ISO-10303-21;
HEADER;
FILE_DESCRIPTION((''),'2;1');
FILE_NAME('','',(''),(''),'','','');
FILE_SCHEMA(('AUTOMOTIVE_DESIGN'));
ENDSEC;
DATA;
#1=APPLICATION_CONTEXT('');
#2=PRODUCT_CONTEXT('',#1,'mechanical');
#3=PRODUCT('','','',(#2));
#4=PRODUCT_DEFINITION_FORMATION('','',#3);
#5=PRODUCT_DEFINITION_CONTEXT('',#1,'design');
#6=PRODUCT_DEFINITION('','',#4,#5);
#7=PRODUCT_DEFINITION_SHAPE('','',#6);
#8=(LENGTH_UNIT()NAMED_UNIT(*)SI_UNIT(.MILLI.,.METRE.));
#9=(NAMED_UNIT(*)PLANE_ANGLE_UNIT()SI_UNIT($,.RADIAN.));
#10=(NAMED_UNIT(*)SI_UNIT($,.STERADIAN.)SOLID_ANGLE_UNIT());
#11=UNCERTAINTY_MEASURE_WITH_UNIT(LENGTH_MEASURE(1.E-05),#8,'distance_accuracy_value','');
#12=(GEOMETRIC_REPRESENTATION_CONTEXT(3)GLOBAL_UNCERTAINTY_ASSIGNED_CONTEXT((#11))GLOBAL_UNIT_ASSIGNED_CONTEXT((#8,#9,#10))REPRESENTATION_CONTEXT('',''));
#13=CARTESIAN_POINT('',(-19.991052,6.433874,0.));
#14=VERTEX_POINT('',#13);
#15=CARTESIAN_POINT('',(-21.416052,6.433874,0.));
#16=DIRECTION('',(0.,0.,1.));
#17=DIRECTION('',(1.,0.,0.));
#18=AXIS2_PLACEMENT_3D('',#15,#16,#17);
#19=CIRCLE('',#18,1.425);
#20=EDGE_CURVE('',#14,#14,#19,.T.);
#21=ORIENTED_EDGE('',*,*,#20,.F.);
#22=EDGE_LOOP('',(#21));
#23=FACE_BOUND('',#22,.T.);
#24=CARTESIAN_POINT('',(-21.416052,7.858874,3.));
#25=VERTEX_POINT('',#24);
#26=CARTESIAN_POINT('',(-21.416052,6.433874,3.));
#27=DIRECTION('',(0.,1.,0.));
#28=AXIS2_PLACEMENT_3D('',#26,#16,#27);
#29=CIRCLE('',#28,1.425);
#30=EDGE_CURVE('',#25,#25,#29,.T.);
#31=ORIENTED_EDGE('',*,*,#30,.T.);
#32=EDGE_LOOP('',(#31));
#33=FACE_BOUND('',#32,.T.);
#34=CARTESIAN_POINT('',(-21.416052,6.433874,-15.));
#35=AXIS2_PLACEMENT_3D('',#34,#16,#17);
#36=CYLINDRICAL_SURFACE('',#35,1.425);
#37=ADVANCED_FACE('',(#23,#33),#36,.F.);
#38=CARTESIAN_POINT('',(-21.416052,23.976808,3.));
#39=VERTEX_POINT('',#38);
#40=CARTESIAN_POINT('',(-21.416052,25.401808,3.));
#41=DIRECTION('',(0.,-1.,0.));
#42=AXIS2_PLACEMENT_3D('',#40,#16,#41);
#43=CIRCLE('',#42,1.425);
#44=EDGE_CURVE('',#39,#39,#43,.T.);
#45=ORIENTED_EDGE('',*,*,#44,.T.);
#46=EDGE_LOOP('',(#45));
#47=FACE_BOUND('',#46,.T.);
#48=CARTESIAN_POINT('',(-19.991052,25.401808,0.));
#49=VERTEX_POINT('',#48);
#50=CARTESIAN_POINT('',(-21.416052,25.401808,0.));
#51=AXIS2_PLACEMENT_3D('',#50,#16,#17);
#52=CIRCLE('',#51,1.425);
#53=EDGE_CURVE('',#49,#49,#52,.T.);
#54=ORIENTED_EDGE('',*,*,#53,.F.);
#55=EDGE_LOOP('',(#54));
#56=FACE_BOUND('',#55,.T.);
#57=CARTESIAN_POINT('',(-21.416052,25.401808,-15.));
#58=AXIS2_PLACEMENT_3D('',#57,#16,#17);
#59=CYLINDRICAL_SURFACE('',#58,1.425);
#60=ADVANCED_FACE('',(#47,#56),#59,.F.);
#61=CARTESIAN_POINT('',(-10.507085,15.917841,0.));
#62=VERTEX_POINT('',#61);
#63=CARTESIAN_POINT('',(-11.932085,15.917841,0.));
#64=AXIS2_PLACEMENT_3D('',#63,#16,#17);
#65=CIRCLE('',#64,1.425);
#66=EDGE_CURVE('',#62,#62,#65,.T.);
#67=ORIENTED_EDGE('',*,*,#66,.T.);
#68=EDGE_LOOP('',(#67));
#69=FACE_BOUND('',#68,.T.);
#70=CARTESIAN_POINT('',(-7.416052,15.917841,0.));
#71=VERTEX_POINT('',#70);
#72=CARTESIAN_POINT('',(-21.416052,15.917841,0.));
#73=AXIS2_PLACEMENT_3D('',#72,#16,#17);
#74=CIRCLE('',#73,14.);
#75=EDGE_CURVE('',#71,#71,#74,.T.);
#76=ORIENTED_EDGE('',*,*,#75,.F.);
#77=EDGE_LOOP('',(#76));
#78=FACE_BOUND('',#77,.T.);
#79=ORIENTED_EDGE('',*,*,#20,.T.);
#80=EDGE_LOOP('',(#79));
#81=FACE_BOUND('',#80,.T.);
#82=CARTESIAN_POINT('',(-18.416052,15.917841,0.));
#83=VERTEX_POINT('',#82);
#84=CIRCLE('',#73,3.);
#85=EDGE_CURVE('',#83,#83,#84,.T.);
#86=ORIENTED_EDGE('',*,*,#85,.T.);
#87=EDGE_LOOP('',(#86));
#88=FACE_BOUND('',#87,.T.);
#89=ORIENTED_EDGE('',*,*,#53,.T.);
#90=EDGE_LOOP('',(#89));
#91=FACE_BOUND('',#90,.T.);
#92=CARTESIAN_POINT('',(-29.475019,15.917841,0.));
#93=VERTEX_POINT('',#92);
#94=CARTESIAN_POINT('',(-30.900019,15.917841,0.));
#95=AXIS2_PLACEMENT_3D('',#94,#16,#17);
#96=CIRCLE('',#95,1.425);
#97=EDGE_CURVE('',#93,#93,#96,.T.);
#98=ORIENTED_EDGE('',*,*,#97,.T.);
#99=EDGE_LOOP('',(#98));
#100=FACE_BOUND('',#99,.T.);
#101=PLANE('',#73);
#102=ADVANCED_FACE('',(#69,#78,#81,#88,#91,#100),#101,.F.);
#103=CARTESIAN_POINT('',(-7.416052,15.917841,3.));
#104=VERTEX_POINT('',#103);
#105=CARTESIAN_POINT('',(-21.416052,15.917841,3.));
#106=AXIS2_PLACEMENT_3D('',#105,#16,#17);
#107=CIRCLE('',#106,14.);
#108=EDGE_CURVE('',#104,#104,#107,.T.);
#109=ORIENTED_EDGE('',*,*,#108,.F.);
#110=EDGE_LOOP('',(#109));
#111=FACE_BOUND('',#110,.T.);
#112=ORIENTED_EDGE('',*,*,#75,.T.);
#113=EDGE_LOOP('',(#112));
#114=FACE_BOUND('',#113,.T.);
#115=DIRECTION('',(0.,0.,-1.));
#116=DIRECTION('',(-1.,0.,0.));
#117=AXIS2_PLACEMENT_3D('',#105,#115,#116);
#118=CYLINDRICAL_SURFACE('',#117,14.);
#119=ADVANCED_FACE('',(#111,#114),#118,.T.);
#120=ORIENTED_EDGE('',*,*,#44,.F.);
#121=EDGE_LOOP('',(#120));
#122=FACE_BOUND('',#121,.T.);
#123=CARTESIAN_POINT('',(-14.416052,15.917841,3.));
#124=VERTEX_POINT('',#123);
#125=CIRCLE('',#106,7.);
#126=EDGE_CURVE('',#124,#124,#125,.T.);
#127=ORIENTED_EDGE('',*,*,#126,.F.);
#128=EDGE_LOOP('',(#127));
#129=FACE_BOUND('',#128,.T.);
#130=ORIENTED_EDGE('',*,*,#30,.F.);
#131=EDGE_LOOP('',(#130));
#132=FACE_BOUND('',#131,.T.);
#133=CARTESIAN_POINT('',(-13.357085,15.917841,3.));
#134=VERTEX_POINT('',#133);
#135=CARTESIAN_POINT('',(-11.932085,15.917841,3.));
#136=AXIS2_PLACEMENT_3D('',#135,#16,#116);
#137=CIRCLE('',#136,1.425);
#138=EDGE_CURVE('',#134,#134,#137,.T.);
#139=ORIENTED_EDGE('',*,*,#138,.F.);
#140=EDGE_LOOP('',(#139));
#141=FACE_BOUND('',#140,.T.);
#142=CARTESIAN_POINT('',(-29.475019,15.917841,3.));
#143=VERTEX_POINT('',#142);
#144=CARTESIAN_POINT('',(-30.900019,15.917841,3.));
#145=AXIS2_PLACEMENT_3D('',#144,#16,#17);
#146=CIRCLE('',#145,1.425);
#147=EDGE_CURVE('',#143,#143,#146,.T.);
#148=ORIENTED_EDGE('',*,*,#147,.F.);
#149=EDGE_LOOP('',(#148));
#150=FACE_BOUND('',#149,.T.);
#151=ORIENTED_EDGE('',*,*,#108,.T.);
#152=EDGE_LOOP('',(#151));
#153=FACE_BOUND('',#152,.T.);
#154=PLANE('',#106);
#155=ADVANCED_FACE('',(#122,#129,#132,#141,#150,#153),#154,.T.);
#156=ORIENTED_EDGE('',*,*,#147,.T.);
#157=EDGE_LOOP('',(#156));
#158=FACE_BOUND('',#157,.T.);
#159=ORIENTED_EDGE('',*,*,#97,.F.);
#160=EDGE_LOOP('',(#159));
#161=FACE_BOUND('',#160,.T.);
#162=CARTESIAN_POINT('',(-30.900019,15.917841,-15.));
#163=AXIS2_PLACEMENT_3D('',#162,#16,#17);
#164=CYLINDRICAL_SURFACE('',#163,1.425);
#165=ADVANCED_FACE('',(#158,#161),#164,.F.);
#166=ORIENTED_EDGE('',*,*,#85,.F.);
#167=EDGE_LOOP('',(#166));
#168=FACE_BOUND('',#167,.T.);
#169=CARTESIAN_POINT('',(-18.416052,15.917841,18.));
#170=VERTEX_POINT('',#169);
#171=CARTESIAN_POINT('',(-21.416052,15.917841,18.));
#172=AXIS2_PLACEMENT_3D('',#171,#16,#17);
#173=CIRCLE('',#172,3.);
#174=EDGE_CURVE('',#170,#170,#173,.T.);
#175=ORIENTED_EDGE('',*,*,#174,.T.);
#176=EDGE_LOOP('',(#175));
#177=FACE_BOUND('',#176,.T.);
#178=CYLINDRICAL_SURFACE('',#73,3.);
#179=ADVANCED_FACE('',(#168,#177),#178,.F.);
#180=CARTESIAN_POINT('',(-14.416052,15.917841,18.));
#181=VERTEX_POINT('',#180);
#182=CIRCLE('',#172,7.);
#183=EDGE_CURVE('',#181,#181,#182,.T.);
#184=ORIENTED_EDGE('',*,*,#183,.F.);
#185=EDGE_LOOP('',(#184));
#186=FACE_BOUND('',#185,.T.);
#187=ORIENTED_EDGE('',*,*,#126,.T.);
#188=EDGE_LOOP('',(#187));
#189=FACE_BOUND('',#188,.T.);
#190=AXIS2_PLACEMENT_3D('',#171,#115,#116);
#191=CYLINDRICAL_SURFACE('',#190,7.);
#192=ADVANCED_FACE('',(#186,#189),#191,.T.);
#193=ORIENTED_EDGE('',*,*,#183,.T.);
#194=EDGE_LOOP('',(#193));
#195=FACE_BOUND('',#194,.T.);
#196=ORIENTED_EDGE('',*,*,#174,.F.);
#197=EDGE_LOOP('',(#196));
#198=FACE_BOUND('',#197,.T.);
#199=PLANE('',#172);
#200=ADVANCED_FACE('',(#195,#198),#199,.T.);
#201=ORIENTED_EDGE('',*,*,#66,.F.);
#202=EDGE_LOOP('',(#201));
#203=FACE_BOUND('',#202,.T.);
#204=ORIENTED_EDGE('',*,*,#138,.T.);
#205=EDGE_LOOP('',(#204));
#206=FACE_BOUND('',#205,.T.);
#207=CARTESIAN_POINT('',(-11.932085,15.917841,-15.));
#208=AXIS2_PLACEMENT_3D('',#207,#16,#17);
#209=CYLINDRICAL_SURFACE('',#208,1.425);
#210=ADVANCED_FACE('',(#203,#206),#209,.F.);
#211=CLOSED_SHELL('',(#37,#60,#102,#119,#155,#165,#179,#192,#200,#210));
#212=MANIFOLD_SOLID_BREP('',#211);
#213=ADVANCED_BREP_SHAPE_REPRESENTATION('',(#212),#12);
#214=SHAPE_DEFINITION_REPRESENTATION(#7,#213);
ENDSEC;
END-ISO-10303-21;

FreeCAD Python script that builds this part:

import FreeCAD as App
import Part
import Sketcher

V = App.Vector

doc = App.newDocument("Part")
params = doc.addObject("Spreadsheet::Sheet", "Params")
for row, (alias, value) in enumerate([
    ("sketch1_diameter", "28 mm"),
    ("pad1_length", "3 mm"),
    ("sketch2_diameter", "14 mm"),
    ("pad2_length", "15 mm"),
    ("sketch3_diameter", "6 mm"),
    ("pocket1_length", "18 mm"),
    ("sketch4_diameter", "2.85 mm"),
    ("pocket2_length", "18 mm"),
], start=1):
    params.set(f"A{row}", alias)
    params.set(f"B{row}", "=" + value)
    params.setAlias(f"B{row}", alias)

body = doc.addObject("PartDesign::Body", "Body")

# Sketch on XY plane
sketch1 = body.newObject("Sketcher::SketchObject", "Sketch")
sketch1.AttachmentSupport = (doc.getObject("XY_Plane"), [""])
sketch1.MapMode = "FlatFace"
sketch1.addGeometry(Part.Circle(V(-21, 16, 0), V(0, 0, 1), 14), False)
sketch1.addConstraint(Sketcher.Constraint("Diameter", 0, 28.0))
sketch1.addConstraint(Sketcher.Constraint("DistanceX", 0, 3, -1, 1, 21.416052))
sketch1.addConstraint(Sketcher.Constraint("DistanceY", -1, 1, 0, 3, 15.917841))
sketch1.setExpression("Constraints[0]", "Params.sketch1_diameter")
pad1 = body.newObject("PartDesign::Pad", "Pad")
pad1.Profile = sketch1
pad1.setExpression("Length", "Params.pad1_length")

# Sketch on XY plane
sketch2 = body.newObject("Sketcher::SketchObject", "Sketch001")
sketch2.AttachmentSupport = (doc.getObject("XY_Plane"), [""])
sketch2.MapMode = "FlatFace"
sketch2.AttachmentOffset = App.Placement(V(0, 0, 3), App.Rotation())
sketch2.addGeometry(Part.Circle(V(-21, 16, 0), V(0, 0, 1), 7), False)
sketch2.addConstraint(Sketcher.Constraint("Diameter", 0, 14.0))
sketch2.addConstraint(Sketcher.Constraint("DistanceX", 0, 3, -1, 1, 21.416052))
sketch2.addConstraint(Sketcher.Constraint("DistanceY", -1, 1, 0, 3, 15.917841))
sketch2.setExpression("Constraints[0]", "Params.sketch2_diameter")
pad2 = body.newObject("PartDesign::Pad", "Pad001")
pad2.Profile = sketch2
pad2.setExpression("Length", "Params.pad2_length")

# Sketch on XY plane
sketch3 = body.newObject("Sketcher::SketchObject", "Sketch002")
sketch3.AttachmentSupport = (doc.getObject("XY_Plane"), [""])
sketch3.MapMode = "FlatFace"
sketch3.AttachmentOffset = App.Placement(V(0, 0, 18), App.Rotation())
sketch3.addGeometry(Part.Circle(V(-21.4, 15.9, 0), V(0, 0, 1), 3), False)
sketch3.addConstraint(Sketcher.Constraint("Diameter", 0, 6.0))
sketch3.addConstraint(Sketcher.Constraint("DistanceX", 0, 3, -1, 1, 21.416052))
sketch3.addConstraint(Sketcher.Constraint("DistanceY", -1, 1, 0, 3, 15.917841))
sketch3.setExpression("Constraints[0]", "Params.sketch3_diameter")
pocket1 = body.newObject("PartDesign::Pocket", "Pocket")
pocket1.Profile = sketch3
pocket1.setExpression("Length", "Params.pocket1_length")

# Sketch on XY plane
sketch4 = body.newObject("Sketcher::SketchObject", "Sketch003")
sketch4.AttachmentSupport = (doc.getObject("XY_Plane"), [""])
sketch4.MapMode = "FlatFace"
sketch4.AttachmentOffset = App.Placement(V(0, 0, 3), App.Rotation())
sketch4.addGeometry(Part.Circle(V(-30.9, 15.9, 0), V(0, 0, 1), 1.4), False)
sketch4.addConstraint(Sketcher.Constraint("Diameter", 0, 2.85))
sketch4.addConstraint(Sketcher.Constraint("DistanceX", 0, 3, -1, 1, 30.900019))
sketch4.addConstraint(Sketcher.Constraint("DistanceY", -1, 1, 0, 3, 15.917841))
sketch4.setExpression("Constraints[0]", "Params.sketch4_diameter")
pocket2 = body.newObject("PartDesign::Pocket", "Pocket001")
pocket2.Profile = sketch4
pocket2.setExpression("Length", "Params.pocket2_length")
doc.recompute()

datumline = body.newObject("PartDesign::Line", "DatumLine")
datumline.Placement = App.Placement(V(-21.416052, 15.917841, 0), App.Rotation(V(0, 0, 1), V(0, 0, 1)))
polarpattern = body.newObject("PartDesign::PolarPattern", "PolarPattern")
polarpattern.Originals = [pocket2]
polarpattern.Axis = (datumline, [""])
polarpattern.Angle = 360
polarpattern.Occurrences = 4
body.Tip = polarpattern

doc.recompute()
